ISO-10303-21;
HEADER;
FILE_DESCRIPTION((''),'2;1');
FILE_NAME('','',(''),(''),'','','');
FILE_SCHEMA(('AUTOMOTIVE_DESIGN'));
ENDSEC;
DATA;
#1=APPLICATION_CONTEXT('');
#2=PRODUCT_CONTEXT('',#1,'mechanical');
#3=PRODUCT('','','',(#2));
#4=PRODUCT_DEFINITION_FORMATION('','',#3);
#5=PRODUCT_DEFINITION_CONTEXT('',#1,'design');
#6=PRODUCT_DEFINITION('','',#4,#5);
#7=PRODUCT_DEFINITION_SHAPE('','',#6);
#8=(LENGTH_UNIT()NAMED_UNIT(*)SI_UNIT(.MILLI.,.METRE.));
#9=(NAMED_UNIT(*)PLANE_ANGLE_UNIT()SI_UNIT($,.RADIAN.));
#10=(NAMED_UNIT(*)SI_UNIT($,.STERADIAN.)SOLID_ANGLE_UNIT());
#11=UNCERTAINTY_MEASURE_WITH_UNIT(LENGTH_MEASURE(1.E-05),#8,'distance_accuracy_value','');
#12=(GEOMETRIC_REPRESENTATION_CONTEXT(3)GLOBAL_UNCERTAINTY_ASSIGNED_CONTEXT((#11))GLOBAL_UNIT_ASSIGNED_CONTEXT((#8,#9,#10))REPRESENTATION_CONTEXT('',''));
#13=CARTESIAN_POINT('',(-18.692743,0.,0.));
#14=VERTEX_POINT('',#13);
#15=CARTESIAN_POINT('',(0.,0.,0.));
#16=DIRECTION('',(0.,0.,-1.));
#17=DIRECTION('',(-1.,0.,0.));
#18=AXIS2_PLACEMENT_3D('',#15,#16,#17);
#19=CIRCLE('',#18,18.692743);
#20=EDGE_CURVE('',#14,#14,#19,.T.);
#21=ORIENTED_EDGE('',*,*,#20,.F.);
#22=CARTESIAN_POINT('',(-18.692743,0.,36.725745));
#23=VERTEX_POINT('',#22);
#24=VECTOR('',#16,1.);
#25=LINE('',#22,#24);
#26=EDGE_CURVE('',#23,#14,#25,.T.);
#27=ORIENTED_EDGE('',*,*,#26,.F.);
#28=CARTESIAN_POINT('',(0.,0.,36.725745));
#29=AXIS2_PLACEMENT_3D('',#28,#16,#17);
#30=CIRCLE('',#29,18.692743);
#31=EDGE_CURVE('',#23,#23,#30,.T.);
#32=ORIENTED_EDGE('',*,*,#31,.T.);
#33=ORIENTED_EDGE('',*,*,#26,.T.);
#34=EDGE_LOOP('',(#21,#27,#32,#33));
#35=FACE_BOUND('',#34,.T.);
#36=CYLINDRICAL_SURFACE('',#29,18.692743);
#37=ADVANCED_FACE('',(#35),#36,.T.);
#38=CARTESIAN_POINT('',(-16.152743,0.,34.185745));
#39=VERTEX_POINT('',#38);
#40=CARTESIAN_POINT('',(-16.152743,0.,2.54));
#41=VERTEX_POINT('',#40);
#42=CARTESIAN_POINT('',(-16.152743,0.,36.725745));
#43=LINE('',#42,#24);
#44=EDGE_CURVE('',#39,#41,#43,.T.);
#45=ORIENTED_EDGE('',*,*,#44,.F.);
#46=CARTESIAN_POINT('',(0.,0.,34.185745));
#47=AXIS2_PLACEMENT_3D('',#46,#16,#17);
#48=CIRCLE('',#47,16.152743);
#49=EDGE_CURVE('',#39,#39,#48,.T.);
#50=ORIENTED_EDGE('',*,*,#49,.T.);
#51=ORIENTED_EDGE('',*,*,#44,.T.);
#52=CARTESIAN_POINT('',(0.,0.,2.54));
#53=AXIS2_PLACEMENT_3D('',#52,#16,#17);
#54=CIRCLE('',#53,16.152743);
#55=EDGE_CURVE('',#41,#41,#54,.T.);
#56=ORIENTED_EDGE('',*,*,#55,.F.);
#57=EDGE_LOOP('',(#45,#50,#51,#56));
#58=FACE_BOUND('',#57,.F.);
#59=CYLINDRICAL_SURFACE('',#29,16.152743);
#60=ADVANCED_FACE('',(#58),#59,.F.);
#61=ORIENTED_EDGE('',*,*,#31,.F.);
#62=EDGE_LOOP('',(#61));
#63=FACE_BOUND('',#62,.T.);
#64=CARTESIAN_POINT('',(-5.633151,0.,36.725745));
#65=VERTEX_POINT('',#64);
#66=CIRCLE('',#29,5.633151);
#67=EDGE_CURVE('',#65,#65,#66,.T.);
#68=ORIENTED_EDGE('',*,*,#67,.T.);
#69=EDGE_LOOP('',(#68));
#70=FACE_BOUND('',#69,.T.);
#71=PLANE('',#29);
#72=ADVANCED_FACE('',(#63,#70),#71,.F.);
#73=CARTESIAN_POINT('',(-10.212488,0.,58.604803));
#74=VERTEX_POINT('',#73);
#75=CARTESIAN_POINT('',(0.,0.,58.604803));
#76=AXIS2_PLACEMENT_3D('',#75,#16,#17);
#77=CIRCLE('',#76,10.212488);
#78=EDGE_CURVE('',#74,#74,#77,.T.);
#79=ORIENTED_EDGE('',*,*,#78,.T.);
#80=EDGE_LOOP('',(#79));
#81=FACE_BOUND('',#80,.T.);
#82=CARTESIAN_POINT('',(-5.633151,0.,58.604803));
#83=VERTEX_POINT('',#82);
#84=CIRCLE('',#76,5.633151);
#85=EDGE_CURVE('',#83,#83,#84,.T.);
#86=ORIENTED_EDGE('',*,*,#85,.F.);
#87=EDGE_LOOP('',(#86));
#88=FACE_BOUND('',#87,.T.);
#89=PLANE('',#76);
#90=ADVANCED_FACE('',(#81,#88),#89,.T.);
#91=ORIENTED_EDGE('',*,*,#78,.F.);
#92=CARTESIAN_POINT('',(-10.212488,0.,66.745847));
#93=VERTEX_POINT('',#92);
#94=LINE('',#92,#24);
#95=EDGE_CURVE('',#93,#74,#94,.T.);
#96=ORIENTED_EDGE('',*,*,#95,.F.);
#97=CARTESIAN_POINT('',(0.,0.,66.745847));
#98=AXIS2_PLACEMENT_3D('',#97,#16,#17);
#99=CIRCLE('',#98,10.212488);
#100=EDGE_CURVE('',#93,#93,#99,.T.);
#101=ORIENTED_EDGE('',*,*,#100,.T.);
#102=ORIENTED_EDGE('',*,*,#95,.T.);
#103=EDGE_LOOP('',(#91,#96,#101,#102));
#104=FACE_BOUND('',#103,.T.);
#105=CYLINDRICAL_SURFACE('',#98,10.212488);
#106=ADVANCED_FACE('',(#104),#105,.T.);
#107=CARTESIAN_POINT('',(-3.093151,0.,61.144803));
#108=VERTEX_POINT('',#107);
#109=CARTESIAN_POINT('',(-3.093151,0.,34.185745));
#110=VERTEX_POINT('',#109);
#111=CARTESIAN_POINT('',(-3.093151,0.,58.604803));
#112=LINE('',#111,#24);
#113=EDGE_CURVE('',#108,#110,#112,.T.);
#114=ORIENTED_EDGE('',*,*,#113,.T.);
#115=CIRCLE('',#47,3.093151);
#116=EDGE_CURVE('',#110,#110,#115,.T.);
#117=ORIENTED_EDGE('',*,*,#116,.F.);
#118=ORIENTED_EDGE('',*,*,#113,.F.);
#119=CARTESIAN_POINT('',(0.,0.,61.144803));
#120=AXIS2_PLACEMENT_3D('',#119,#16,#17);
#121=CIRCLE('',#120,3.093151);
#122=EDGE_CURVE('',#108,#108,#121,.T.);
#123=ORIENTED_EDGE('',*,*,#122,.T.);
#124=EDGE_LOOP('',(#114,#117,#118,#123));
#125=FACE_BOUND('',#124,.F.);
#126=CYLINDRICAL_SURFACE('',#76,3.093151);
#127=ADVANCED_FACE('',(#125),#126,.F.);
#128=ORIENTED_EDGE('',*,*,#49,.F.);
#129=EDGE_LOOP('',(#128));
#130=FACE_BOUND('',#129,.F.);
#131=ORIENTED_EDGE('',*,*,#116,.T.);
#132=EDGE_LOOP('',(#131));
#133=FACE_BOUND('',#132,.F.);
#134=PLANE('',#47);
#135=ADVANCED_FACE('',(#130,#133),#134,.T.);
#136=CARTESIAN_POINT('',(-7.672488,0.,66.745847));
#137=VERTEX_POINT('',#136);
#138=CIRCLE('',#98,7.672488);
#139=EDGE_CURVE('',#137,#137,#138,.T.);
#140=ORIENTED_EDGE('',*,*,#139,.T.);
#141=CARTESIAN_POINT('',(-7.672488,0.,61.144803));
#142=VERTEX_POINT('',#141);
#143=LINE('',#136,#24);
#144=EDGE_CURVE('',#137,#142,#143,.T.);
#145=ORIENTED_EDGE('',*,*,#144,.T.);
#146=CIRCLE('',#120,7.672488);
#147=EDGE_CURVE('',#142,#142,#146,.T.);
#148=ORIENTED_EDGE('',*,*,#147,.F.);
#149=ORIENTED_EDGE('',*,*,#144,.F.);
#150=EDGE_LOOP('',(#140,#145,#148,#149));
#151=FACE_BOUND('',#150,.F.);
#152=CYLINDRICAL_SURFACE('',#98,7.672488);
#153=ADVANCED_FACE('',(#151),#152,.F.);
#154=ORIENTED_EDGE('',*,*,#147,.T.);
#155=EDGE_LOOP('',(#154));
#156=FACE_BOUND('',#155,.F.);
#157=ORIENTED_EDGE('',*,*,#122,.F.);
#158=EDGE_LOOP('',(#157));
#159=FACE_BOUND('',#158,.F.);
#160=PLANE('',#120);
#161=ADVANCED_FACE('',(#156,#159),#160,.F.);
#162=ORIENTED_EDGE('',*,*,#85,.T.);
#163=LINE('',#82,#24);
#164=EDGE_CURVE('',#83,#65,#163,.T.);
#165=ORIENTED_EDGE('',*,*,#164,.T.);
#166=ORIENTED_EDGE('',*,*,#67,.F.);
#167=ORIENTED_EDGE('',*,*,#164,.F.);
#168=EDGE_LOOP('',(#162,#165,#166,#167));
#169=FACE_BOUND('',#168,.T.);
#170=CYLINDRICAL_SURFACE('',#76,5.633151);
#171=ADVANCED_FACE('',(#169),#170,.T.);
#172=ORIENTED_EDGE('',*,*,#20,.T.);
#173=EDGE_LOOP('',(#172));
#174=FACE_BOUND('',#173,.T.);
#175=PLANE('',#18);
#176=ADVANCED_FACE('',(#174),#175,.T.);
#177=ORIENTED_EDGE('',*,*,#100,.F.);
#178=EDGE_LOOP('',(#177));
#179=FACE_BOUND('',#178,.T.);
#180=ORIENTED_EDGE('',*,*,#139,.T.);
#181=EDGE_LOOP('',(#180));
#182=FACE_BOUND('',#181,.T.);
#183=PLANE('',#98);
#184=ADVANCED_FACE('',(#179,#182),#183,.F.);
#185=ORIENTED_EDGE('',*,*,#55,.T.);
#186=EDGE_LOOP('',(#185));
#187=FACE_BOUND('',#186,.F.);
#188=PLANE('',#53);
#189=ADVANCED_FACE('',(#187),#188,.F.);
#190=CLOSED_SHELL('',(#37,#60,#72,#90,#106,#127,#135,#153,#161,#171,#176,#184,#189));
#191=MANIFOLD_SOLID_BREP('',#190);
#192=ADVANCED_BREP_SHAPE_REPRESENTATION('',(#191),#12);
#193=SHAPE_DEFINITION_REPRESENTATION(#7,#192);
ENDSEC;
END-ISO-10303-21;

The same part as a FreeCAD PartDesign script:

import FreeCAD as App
import Part
import Sketcher
Q = App.Units.Quantity


def faces_at(feature, points):
    """Names of the faces that lie closest to the given points."""
    faces = feature.Shape.Faces
    near = lambda p: min(range(len(faces)), key=lambda i: faces[i].distToShape(Part.Vertex(*p))[0])
    return sorted({f"Face{near(p) + 1}" for p in points})

doc = App.newDocument("Part")
body = doc.addObject("PartDesign::Body", "Body")

# Sketch on XZ plane
sketch1 = body.newObject("Sketcher::SketchObject", "Sketch")
sketch1.AttachmentSupport = (doc.getObject("XZ_Plane"), [""])
sketch1.MapMode = "FlatFace"
sketch1.addGeometry(Part.LineSegment(App.Vector(0, 0, 0), App.Vector(0, 66.7, 0)), False)
sketch1.addGeometry(Part.LineSegment(App.Vector(0, 66.7, 0), App.Vector(-10.2, 66.7, 0)), False)
sketch1.addGeometry(Part.LineSegment(App.Vector(-10.2, 66.7, 0), App.Vector(-10.2, 58.6, 0)), False)
sketch1.addGeometry(Part.LineSegment(App.Vector(-10.2, 58.6, 0), App.Vector(-5.6, 58.6, 0)), False)
sketch1.addGeometry(Part.LineSegment(App.Vector(-5.6, 58.6, 0), App.Vector(-5.6, 36.7, 0)), False)
sketch1.addGeometry(Part.LineSegment(App.Vector(-5.6, 36.7, 0), App.Vector(-18.7, 36.7, 0)), False)
sketch1.addGeometry(Part.LineSegment(App.Vector(-18.7, 36.7, 0), App.Vector(-18.7, 0, 0)), False)
sketch1.addGeometry(Part.LineSegment(App.Vector(-18.7, 0, 0), App.Vector(0, 0, 0)), False)
sketch1.addConstraint(Sketcher.Constraint("Coincident", 0, 2, 1, 1))
sketch1.addConstraint(Sketcher.Constraint("Coincident", 1, 2, 2, 1))
sketch1.addConstraint(Sketcher.Constraint("Coincident", 2, 2, 3, 1))
sketch1.addConstraint(Sketcher.Constraint("Coincident", 3, 2, 4, 1))
sketch1.addConstraint(Sketcher.Constraint("Coincident", 4, 2, 5, 1))
sketch1.addConstraint(Sketcher.Constraint("Coincident", 5, 2, 6, 1))
sketch1.addConstraint(Sketcher.Constraint("Coincident", 6, 2, 7, 1))
sketch1.addConstraint(Sketcher.Constraint("Coincident", 7, 2, 0, 1))
sketch1.addConstraint(Sketcher.Constraint("Vertical", 0))
sketch1.addConstraint(Sketcher.Constraint("Horizontal", 1))
sketch1.addConstraint(Sketcher.Constraint("Vertical", 2))
sketch1.addConstraint(Sketcher.Constraint("Horizontal", 3))
sketch1.addConstraint(Sketcher.Constraint("Vertical", 4))
sketch1.addConstraint(Sketcher.Constraint("Horizontal", 5))
sketch1.addConstraint(Sketcher.Constraint("Vertical", 6))
sketch1.addConstraint(Sketcher.Constraint("Horizontal", 7))
sketch1.addConstraint(Sketcher.Constraint("Coincident", 7, 2, -1, 1))
sketch1.addConstraint(Sketcher.Constraint("DistanceX", 1, 2, 1, 1, Q("10.212488 mm")))
sketch1.addConstraint(Sketcher.Constraint("DistanceY", 4, 2, 4, 1, Q("21.879058 mm")))
sketch1.addConstraint(Sketcher.Constraint("DistanceX", 3, 1, 3, 2, Q("4.579338 mm")))
sketch1.addConstraint(Sketcher.Constraint("DistanceX", 5, 2, 5, 1, Q("13.059592 mm")))
sketch1.addConstraint(Sketcher.Constraint("DistanceY", 0, 1, 0, 2, Q("66.745847 mm")))
sketch1.addConstraint(Sketcher.Constraint("DistanceY", 2, 2, 2, 1, Q("8.141045 mm")))
revolution = body.newObject("PartDesign::Revolution", "Revolution")
revolution.Profile = sketch1
revolution.ReferenceAxis = (sketch1, ["V_Axis"])
revolution.Angle = 360
doc.recompute()

thickness = body.newObject("PartDesign::Thickness", "Thickness")
thickness.Base = (revolution, faces_at(revolution, [(0, 0, 66.746)]))
thickness.Value = Q("0.1 in")
thickness.Reversed = True
thickness.Join = "Intersection"

doc.recompute()
